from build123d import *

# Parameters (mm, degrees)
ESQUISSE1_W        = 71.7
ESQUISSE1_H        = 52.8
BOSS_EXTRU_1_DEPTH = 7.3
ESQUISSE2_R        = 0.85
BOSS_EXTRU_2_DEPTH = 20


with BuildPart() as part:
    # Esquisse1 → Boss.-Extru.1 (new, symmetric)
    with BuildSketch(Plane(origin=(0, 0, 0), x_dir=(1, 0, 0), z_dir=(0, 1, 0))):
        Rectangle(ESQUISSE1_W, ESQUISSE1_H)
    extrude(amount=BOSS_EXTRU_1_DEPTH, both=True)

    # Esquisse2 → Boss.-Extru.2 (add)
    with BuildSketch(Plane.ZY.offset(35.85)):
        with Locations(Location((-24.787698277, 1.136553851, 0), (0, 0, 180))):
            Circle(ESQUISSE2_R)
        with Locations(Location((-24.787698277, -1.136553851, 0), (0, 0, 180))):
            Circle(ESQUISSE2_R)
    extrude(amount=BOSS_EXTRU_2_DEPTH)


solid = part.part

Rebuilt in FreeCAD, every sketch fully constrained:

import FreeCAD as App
import Part
import Sketcher
from FreeCAD import Vector

doc = App.newDocument("Part")
params = doc.addObject("Spreadsheet::Sheet", "Params")
for row, (alias, value) in enumerate([
    ("sketch1_width", "71.7 mm"),
    ("sketch1_height", "52.8 mm"),
    ("pad1_length", "14.6 mm"),
    ("sketch2_diameter", "1.7 mm"),
    ("pad2_length", "20 mm"),
], start=1):
    params.set(f"A{row}", alias)
    params.set(f"B{row}", "=" + value)
    params.setAlias(f"B{row}", alias)

body = doc.addObject("PartDesign::Body", "Body")

sketch1 = body.newObject("Sketcher::SketchObject", "Sketch")
sketch1.AttachmentSupport = (doc.getObject("XZ_Plane"), [""])
sketch1.MapMode = "FlatFace"
sketch1.addGeometry(Part.LineSegment(Vector(-36, -26, 0), Vector(-36, 26, 0)), False)
sketch1.addGeometry(Part.LineSegment(Vector(-36, 26, 0), Vector(36, 26, 0)), False)
sketch1.addGeometry(Part.LineSegment(Vector(36, 26, 0), Vector(36, -26, 0)), False)
sketch1.addGeometry(Part.LineSegment(Vector(36, -26, 0), Vector(-36, -26, 0)), False)
sketch1.addConstraint(Sketcher.Constraint("Coincident", 0, 2, 1, 1))
sketch1.addConstraint(Sketcher.Constraint("Coincident", 1, 2, 2, 1))
sketch1.addConstraint(Sketcher.Constraint("Coincident", 2, 2, 3, 1))
sketch1.addConstraint(Sketcher.Constraint("Coincident", 3, 2, 0, 1))
sketch1.addConstraint(Sketcher.Constraint("Vertical", 0))
sketch1.addConstraint(Sketcher.Constraint("Horizontal", 1))
sketch1.addConstraint(Sketcher.Constraint("Vertical", 2))
sketch1.addConstraint(Sketcher.Constraint("Horizontal", 3))
sketch1.addConstraint(Sketcher.Constraint("Symmetric", 0, 2, 2, 2, -1, 1))
sketch1.addConstraint(Sketcher.Constraint("DistanceX", 1, 1, 1, 2, 71.7))
sketch1.addConstraint(Sketcher.Constraint("DistanceY", 0, 1, 0, 2, 52.8))
sketch1.setExpression("Constraints[9]", "Params.sketch1_width")
sketch1.setExpression("Constraints[10]", "Params.sketch1_height")
pad1 = body.newObject("PartDesign::Pad", "Pad")
pad1.Profile = sketch1
pad1.setExpression("Length", "Params.pad1_length")
pad1.Midplane = True

sketch2 = body.newObject("Sketcher::SketchObject", "Sketch001")
sketch2.AttachmentSupport = (doc.getObject("YZ_Plane"), [""])
sketch2.MapMode = "FlatFace"
sketch2.AttachmentOffset = App.Placement(Vector(0, 0, -35.85), App.Rotation())
sketch2.addGeometry(Part.Circle(Vector(1.1, -24.8, 0), Vector(0, 0, 1), 0.8), False)
sketch2.addGeometry(Part.Circle(Vector(-1.1, -24.8, 0), Vector(0, 0, 1), 0.8), False)
sketch2.addConstraint(Sketcher.Constraint("Equal", 0, 1))
sketch2.addConstraint(Sketcher.Constraint("Symmetric", 0, 3, 1, 3, -2))
sketch2.addConstraint(Sketcher.Constraint("Diameter", 0, 1.7))
sketch2.addConstraint(Sketcher.Constraint("DistanceY", 0, 3, -1, 1, 24.787698))
sketch2.addConstraint(Sketcher.Constraint("DistanceX", -1, 1, 0, 3, 1.136554))
sketch2.setExpression("Constraints[2]", "Params.sketch2_diameter")
pad2 = body.newObject("PartDesign::Pad", "Pad001")
pad2.Profile = sketch2
pad2.setExpression("Length", "Params.pad2_length")
pad2.Reversed = True

doc.recompute()
